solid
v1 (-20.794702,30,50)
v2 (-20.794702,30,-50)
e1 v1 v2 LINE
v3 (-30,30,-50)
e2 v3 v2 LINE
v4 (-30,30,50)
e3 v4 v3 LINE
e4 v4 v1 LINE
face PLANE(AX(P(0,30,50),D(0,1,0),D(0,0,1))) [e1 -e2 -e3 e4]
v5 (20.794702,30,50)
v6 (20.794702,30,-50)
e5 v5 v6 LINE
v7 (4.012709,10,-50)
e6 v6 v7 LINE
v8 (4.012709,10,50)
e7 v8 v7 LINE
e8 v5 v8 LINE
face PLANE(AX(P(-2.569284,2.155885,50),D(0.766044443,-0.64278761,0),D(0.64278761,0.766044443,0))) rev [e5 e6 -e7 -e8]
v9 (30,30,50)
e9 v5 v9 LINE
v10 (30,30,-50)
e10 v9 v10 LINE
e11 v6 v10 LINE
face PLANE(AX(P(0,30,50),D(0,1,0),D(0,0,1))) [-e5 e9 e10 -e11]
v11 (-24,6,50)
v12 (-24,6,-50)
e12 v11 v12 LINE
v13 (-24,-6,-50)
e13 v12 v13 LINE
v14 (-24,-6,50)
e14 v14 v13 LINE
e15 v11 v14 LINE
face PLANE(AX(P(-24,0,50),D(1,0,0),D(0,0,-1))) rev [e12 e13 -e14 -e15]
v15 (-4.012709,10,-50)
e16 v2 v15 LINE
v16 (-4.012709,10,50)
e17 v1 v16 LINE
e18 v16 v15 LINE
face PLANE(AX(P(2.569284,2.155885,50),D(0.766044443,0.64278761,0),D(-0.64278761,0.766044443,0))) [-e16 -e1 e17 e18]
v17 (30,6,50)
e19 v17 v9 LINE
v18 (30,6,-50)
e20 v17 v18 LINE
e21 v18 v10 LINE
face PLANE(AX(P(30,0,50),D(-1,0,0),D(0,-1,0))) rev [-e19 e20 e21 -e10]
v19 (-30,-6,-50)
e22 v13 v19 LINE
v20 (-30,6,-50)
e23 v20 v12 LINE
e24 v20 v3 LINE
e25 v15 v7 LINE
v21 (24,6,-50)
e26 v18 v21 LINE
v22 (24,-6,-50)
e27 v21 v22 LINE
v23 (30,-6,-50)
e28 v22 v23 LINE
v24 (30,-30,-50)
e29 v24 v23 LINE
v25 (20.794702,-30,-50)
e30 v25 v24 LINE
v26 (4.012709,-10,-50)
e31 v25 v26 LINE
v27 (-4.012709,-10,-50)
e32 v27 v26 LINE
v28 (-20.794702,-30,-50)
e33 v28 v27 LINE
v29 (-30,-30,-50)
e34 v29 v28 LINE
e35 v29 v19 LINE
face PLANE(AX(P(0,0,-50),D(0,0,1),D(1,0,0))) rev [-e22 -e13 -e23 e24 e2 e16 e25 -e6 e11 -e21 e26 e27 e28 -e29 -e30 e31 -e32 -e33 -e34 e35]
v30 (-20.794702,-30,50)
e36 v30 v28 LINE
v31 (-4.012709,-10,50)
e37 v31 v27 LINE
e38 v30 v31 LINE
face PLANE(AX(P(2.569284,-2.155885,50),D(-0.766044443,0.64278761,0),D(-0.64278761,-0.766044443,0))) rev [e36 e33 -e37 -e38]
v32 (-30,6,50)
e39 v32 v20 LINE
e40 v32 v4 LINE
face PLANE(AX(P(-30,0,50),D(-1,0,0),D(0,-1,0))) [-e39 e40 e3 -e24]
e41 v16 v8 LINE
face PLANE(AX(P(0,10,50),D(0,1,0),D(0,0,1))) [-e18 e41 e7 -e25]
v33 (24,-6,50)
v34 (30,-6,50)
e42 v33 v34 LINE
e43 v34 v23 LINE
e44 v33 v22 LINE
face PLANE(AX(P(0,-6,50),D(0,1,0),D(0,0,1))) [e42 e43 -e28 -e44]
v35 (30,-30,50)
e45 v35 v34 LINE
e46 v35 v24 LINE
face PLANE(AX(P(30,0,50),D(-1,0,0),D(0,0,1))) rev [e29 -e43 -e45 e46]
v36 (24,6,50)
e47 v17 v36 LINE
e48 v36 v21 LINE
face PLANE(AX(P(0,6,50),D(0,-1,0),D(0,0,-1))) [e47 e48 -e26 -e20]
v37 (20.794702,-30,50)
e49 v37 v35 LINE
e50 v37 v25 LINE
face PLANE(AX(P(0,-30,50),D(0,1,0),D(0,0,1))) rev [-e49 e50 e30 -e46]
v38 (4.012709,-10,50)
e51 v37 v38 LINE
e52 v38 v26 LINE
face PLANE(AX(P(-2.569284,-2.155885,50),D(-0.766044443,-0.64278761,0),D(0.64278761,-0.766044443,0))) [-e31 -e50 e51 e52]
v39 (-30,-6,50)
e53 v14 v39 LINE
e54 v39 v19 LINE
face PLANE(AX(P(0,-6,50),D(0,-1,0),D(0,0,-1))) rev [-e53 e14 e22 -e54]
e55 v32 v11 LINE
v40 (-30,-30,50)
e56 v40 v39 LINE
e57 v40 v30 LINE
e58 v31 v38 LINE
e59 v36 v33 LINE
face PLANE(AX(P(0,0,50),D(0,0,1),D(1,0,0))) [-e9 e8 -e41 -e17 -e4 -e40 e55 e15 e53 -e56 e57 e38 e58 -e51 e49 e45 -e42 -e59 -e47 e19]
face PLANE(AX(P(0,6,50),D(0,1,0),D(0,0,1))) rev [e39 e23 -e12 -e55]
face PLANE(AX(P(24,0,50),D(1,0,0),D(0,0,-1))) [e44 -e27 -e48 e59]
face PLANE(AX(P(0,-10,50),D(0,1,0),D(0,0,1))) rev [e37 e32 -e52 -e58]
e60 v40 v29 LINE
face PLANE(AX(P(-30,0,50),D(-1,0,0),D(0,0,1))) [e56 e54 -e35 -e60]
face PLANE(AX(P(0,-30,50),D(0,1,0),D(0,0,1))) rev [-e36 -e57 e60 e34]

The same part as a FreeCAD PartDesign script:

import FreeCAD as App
import Part
import Sketcher

V = App.Vector
Q = App.Units.Quantity


def add_polygon(sketch, points):
    """Adds a closed chain of lines whose ends are joined by coincident constraints."""
    first, n = sketch.GeometryCount, len(points)
    for a, b in zip(points, points[1:] + points[:1]):
        sketch.addGeometry(Part.LineSegment(App.Vector(*a, 0), App.Vector(*b, 0)), False)
    for i in range(n):
        sketch.addConstraint(Sketcher.Constraint("Coincident", first + i, 2, first + (i + 1) % n, 1))

doc = App.newDocument("Part")
body = doc.addObject("PartDesign::Body", "Body")

sketch1 = body.newObject("Sketcher::SketchObject", "Sketch")
sketch1.AttachmentSupport = (doc.getObject("XY_Plane"), [""])
sketch1.MapMode = "FlatFace"
add_polygon(sketch1, [(-30, 30), (-30, 6), (-24, 6), (-24, -6), (-30, -6), (-30, -30), (-21, -30), (-4, -10), (4, -10), (21, -30), (30, -30), (30, -6), (24, -6), (24, 6), (30, 6), (30, 30), (21, 30), (4, 10), (-4, 10), (-21, 30)])
sketch1.addConstraint(Sketcher.Constraint("Vertical", 0))
sketch1.addConstraint(Sketcher.Constraint("Horizontal", 1))
sketch1.addConstraint(Sketcher.Constraint("Vertical", 2))
sketch1.addConstraint(Sketcher.Constraint("Horizontal", 3))
sketch1.addConstraint(Sketcher.Constraint("Vertical", 4))
sketch1.addConstraint(Sketcher.Constraint("Horizontal", 5))
sketch1.addConstraint(Sketcher.Constraint("Horizontal", 7))
sketch1.addConstraint(Sketcher.Constraint("Horizontal", 9))
sketch1.addConstraint(Sketcher.Constraint("Vertical", 10))
sketch1.addConstraint(Sketcher.Constraint("Horizontal", 11))
sketch1.addConstraint(Sketcher.Constraint("Vertical", 12))
sketch1.addConstraint(Sketcher.Constraint("Horizontal", 13))
sketch1.addConstraint(Sketcher.Constraint("Vertical", 14))
sketch1.addConstraint(Sketcher.Constraint("Horizontal", 15))
sketch1.addConstraint(Sketcher.Constraint("Horizontal", 17))
sketch1.addConstraint(Sketcher.Constraint("Horizontal", 19))
sketch1.addConstraint(Sketcher.Constraint("Symmetric", 0, 2, 10, 2, -1, 1))
sketch1.addConstraint(Sketcher.Constraint("Symmetric", 2, 2, 12, 2, -1, 1))
sketch1.addConstraint(Sketcher.Constraint("Symmetric", 4, 2, 14, 2, -1, 1))
sketch1.addConstraint(Sketcher.Constraint("Symmetric", 6, 2, 16, 2, -1, 1))
sketch1.addConstraint(Sketcher.Constraint("Symmetric", 8, 2, 18, 2, -1, 1))
sketch1.addConstraint(Sketcher.Constraint("Symmetric", 5, 2, 8, 2, -2))
sketch1.addConstraint(Sketcher.Constraint("Symmetric", 3, 2, 10, 2, -2))
sketch1.addConstraint(Sketcher.Constraint("Parallel", 6, 16))
sketch1.addConstraint(Sketcher.Constraint("Parallel", 8, 18))
sketch1.addConstraint(Sketcher.Constraint("Vertical", 7, 2, 16, 2))
sketch1.addConstraint(Sketcher.Constraint("DistanceX", 1, 1, 1, 2, Q("6 mm")))
sketch1.addConstraint(Sketcher.Constraint("DistanceY", 0, 2, 0, 1, Q("24 mm")))
sketch1.addConstraint(Sketcher.Constraint("DistanceY", 2, 2, 2, 1, Q("12 mm")))
sketch1.addConstraint(Sketcher.Constraint("Angle", 6, Q("50 deg")))
sketch1.addConstraint(Sketcher.Constraint("DistanceX", 0, 2, -1, 1, Q("30 mm")))
sketch1.addConstraint(Sketcher.Constraint("DistanceY", 6, 2, -1, 1, Q("10 mm")))
sketch1.addConstraint(Sketcher.Constraint("DistanceX", 5, 1, 5, 2, Q("9.205298 mm")))
pad1 = body.newObject("PartDesign::Pad", "Pad")
pad1.Profile = sketch1
pad1.Length = 100
pad1.Midplane = True

doc.recompute()
